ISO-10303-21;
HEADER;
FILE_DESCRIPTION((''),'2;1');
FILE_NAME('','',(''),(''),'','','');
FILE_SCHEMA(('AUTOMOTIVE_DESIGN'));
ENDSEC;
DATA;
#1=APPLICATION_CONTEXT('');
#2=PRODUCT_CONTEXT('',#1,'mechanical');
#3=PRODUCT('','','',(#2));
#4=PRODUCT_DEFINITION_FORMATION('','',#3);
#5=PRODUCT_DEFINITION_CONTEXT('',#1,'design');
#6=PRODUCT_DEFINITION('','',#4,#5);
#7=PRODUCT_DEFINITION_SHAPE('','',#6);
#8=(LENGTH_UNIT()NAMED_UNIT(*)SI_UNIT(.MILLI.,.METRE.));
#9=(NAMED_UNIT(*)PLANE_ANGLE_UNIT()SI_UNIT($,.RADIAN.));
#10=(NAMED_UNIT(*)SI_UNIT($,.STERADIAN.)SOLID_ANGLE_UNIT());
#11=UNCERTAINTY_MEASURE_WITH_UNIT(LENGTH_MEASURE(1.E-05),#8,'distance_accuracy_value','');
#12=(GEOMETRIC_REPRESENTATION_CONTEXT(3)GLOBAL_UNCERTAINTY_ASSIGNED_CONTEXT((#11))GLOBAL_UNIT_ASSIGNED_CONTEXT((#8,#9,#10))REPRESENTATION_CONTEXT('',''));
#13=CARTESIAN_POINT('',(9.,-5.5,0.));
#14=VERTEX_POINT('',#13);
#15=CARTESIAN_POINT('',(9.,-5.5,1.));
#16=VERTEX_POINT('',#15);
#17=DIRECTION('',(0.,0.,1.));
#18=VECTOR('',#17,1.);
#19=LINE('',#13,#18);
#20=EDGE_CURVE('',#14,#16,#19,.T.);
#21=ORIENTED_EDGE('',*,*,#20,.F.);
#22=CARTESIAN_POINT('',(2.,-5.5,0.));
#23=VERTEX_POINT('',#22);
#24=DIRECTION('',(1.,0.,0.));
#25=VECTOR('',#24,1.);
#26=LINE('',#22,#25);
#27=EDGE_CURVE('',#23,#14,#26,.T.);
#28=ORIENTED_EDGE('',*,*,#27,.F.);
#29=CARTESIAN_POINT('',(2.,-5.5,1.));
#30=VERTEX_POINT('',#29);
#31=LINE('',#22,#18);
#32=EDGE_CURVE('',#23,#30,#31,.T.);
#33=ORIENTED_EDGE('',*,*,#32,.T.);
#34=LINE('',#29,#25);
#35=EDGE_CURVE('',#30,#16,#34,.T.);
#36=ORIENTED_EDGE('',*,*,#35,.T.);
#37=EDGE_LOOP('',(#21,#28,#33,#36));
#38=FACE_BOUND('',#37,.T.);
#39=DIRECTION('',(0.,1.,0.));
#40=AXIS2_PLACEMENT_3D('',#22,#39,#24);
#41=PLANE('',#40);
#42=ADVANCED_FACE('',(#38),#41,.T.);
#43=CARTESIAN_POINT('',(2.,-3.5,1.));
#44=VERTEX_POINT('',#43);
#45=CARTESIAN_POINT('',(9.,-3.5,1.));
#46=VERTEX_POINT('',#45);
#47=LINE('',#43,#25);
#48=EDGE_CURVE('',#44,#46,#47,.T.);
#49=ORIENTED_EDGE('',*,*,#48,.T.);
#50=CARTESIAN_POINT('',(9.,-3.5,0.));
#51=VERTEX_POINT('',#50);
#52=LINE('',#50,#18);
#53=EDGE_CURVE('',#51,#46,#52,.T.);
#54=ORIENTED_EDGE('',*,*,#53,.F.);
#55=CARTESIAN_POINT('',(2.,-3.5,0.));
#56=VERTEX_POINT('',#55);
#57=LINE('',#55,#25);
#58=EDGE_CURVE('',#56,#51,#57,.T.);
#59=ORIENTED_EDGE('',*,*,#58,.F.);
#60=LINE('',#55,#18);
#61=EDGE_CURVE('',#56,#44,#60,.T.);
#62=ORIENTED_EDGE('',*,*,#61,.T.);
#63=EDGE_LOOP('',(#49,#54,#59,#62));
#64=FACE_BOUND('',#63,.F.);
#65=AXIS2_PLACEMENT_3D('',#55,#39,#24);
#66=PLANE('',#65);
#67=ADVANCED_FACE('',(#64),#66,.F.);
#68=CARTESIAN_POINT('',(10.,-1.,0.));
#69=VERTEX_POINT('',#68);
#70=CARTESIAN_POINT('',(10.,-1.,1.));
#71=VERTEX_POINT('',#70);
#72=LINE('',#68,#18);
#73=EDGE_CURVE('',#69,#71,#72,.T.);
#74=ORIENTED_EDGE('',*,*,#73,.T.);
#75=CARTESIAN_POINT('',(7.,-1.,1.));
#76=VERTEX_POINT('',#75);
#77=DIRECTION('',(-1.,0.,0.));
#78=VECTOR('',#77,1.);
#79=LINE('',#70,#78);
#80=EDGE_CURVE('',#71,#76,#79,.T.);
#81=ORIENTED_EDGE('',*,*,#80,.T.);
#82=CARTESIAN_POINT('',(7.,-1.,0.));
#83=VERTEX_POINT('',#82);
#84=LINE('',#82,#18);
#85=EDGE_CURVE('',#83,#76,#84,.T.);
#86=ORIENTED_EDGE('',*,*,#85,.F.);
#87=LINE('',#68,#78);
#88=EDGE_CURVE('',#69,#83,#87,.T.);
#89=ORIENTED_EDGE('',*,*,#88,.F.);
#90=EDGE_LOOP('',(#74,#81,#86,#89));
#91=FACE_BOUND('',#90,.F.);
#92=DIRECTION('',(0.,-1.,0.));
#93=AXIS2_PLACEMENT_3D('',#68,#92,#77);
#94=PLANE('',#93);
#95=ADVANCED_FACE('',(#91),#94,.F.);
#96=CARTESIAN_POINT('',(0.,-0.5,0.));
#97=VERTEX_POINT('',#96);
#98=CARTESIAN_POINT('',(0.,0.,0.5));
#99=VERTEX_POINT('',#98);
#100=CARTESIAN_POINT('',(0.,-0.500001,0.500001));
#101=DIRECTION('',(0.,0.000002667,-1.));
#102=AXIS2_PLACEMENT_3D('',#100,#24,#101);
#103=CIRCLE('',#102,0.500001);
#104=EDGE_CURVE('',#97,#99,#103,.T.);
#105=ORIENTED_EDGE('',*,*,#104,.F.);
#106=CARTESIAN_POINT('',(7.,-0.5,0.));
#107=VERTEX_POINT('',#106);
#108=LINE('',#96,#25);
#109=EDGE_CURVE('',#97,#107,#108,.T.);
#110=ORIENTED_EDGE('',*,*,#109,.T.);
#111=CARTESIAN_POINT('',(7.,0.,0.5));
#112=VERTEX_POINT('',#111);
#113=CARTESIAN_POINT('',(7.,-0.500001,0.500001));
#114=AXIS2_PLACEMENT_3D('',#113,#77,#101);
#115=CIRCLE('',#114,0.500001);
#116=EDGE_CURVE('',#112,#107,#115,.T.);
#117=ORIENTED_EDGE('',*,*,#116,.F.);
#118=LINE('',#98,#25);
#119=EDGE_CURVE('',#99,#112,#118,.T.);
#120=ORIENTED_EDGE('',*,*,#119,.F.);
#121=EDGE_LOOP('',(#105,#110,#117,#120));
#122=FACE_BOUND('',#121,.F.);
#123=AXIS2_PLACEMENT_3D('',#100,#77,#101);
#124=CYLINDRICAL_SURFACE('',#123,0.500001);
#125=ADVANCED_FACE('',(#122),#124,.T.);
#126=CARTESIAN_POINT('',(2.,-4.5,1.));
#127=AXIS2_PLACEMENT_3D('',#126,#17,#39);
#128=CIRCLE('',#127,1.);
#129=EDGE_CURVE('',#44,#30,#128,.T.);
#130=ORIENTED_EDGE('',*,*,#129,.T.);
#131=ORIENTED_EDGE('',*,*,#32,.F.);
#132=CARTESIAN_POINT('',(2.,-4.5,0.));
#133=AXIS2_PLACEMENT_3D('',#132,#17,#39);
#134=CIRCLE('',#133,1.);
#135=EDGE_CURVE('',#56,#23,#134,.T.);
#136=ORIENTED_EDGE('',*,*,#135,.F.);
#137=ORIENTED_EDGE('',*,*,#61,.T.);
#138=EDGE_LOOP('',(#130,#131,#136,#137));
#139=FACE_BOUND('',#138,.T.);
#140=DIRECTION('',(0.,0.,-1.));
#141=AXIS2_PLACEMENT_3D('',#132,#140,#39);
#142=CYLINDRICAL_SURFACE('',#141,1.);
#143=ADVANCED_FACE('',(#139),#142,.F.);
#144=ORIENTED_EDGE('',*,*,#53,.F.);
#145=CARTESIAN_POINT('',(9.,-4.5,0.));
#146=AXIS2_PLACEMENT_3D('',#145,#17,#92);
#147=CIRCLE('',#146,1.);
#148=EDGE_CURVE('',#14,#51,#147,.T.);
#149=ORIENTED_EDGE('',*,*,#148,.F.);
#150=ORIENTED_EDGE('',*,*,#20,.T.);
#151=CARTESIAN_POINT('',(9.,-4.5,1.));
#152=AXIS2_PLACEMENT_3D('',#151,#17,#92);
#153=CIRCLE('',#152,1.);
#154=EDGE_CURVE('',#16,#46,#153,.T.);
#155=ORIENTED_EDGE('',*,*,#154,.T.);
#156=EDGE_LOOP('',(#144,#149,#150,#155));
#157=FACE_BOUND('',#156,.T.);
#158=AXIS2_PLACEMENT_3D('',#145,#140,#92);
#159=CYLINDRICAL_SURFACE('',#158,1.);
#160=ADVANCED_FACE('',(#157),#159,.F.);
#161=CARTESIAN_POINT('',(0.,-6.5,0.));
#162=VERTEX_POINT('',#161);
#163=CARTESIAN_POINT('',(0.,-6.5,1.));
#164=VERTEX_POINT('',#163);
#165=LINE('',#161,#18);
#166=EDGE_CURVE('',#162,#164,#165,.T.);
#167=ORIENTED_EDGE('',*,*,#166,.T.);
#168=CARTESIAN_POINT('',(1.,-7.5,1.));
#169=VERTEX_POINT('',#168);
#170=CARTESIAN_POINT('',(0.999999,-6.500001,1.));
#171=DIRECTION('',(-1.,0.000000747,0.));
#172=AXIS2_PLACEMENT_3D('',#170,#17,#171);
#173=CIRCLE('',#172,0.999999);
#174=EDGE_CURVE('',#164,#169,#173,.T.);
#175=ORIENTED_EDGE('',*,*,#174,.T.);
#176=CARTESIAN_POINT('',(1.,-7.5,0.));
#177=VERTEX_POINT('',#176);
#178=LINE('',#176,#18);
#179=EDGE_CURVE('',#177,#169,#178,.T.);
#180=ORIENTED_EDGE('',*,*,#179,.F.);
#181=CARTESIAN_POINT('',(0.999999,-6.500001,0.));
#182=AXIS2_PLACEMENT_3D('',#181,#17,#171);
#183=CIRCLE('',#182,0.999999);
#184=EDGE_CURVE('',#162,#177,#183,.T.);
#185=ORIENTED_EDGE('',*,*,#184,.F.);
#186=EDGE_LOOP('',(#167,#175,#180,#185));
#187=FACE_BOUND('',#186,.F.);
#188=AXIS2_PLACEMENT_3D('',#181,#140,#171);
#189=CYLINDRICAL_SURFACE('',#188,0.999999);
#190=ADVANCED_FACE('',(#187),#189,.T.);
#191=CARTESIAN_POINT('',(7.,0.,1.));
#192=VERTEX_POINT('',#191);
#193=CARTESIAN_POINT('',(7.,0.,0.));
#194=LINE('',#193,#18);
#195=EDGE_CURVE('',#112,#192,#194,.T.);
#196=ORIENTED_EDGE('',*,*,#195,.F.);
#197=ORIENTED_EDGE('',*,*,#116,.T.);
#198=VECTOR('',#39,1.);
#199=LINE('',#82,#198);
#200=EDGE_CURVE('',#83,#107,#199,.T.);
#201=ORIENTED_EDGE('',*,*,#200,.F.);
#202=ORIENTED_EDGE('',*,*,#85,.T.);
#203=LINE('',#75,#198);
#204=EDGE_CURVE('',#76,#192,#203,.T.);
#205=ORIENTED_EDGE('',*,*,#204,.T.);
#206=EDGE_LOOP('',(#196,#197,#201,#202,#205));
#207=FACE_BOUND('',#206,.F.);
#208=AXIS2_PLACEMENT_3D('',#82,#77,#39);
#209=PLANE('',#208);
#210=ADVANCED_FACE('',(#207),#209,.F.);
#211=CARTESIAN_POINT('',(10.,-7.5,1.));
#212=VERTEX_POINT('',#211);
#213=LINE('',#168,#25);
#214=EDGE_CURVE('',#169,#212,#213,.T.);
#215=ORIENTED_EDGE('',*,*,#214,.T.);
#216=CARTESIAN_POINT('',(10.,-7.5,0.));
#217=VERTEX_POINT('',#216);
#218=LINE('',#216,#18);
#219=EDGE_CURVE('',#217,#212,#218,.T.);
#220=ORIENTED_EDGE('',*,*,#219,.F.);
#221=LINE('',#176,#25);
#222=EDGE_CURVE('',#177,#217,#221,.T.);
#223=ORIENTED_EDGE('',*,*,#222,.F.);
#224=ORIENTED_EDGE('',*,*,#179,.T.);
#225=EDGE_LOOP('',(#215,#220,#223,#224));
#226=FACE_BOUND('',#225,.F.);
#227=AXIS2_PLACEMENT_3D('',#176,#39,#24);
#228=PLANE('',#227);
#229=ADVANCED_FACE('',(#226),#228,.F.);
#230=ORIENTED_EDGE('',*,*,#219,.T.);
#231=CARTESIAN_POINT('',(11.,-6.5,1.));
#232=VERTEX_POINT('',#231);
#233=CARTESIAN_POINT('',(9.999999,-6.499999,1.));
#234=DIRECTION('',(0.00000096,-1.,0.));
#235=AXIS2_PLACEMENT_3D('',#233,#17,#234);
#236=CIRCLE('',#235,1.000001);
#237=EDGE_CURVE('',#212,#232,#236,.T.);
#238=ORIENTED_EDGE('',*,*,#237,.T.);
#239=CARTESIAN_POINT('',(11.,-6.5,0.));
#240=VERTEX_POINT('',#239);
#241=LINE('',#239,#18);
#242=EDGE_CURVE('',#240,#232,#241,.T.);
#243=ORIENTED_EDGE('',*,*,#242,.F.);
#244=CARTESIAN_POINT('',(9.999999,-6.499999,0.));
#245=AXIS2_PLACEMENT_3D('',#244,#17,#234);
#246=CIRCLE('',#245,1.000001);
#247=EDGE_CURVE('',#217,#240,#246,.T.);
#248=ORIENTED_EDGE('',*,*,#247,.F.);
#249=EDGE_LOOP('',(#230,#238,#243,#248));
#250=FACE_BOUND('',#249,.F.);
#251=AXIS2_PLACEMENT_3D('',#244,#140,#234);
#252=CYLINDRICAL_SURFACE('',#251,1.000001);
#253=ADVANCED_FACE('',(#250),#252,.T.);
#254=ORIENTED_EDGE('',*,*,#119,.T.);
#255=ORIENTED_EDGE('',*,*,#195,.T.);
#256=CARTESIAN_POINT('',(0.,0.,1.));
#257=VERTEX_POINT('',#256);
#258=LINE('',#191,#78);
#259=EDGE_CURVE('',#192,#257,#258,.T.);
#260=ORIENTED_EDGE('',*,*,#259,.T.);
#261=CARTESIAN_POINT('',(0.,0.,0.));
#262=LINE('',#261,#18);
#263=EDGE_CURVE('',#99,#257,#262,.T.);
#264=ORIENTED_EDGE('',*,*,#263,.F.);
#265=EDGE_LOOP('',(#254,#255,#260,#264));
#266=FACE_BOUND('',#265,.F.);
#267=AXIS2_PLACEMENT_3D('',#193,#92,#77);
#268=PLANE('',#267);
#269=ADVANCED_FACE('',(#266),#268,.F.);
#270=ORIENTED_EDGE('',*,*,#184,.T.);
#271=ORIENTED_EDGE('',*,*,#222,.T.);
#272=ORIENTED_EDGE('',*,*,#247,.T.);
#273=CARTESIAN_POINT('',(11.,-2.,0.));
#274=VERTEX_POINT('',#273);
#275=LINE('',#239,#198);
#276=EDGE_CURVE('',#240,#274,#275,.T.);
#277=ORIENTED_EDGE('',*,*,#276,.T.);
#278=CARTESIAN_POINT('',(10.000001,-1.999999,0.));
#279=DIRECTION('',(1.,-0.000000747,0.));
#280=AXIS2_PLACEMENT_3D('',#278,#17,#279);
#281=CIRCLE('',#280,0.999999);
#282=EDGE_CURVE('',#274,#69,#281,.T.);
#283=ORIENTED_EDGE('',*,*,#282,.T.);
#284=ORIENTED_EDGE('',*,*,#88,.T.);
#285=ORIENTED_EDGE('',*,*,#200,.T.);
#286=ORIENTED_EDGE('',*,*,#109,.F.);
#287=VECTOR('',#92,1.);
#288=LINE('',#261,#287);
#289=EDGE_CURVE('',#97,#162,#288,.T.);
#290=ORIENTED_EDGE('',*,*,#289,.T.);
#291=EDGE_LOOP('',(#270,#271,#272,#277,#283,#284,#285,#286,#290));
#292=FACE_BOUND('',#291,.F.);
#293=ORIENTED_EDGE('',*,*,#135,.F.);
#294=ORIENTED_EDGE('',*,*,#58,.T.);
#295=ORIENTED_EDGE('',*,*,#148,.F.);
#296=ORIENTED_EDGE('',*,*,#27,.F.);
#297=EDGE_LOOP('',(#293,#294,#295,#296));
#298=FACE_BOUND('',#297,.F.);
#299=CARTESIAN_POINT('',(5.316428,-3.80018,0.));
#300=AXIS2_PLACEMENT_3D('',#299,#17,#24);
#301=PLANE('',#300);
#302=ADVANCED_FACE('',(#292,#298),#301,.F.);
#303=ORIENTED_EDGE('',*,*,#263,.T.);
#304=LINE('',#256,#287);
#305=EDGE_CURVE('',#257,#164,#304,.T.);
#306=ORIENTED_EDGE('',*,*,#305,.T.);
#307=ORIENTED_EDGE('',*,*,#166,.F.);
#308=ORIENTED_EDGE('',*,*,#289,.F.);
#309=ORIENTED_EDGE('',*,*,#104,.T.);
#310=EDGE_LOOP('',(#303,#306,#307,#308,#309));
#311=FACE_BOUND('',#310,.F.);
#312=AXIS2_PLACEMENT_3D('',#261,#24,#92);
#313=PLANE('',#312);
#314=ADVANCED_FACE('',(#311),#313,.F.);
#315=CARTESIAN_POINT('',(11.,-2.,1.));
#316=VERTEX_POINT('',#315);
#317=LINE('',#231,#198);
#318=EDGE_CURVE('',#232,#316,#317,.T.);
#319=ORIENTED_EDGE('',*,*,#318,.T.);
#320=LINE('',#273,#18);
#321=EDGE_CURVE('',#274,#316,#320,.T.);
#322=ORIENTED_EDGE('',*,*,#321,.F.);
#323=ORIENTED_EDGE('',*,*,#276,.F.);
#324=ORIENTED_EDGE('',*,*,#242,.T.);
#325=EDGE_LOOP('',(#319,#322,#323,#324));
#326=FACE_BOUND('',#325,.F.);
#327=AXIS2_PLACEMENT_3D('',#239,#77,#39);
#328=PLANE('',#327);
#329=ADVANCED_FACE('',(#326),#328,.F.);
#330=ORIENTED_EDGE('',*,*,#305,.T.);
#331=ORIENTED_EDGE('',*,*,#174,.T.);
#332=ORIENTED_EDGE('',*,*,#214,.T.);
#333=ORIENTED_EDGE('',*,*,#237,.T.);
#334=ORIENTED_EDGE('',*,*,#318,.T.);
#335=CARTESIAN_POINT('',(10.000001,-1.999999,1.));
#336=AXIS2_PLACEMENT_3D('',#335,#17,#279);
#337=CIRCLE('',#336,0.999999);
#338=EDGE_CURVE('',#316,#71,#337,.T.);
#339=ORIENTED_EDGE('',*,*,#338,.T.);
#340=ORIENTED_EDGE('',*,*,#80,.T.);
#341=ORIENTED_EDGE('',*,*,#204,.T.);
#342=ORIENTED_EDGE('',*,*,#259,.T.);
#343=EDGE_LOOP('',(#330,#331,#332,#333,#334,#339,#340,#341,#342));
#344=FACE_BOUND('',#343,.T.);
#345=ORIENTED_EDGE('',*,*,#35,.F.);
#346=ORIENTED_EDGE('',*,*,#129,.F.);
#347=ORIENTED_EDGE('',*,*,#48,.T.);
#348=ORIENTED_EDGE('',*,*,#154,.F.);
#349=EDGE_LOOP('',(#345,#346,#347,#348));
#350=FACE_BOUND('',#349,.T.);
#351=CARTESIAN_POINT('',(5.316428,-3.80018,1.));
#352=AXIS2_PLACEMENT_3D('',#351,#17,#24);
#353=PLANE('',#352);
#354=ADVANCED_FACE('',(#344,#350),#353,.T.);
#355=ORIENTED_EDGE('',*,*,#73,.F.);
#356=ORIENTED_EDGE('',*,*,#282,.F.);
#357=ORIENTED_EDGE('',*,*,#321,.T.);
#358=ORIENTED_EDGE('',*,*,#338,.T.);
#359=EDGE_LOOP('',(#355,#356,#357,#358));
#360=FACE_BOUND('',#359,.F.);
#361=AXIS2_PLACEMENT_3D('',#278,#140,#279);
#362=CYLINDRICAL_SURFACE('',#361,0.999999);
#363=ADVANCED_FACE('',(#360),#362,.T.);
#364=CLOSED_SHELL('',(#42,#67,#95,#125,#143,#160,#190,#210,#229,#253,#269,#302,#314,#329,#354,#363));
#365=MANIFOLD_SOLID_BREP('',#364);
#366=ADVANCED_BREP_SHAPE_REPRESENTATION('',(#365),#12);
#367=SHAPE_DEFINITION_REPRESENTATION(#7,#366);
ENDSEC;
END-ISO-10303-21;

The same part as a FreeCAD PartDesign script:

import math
import FreeCAD as App
import Part
import Sketcher

doc = App.newDocument("Part")
body = doc.addObject("PartDesign::Body", "Body")

# Sketch on XY plane
sketch1 = doc.addObject("Sketcher::SketchObject", "Sketch")
body.addObject(sketch1)
sketch1.AttachmentSupport = (doc.XY_Plane, [""])
sketch1.MapMode = "FlatFace"
sketch1.addGeometry([
    Part.LineSegment(App.Vector(2, -5.5, 0), App.Vector(9, -5.5, 0)),
    Part.ArcOfCircle(Part.Circle(App.Vector(9, -4.5, 0), App.Vector(0, 0, 1), 1), math.radians(-90), math.radians(90)),
    Part.LineSegment(App.Vector(9, -3.5, 0), App.Vector(2, -3.5, 0)),
    Part.ArcOfCircle(Part.Circle(App.Vector(2, -4.5, 0), App.Vector(0, 0, 1), 1), math.radians(90), math.radians(270)),
], False)
sketch1.addConstraint([
    Sketcher.Constraint("Tangent", 0, 2, 1, 1),
    Sketcher.Constraint("Tangent", 1, 2, 2, 1),
    Sketcher.Constraint("Tangent", 2, 2, 3, 1),
    Sketcher.Constraint("Tangent", 3, 2, 0, 1),
    Sketcher.Constraint("Horizontal", 0),
    Sketcher.Constraint("Horizontal", 2),
    Sketcher.Constraint("Radius", 1, 1.0),
    Sketcher.Constraint("DistanceX", 0, 1, 0, 2, 7.0),
    Sketcher.Constraint("DistanceX", -1, 1, 1, 3, 9.0),
    Sketcher.Constraint("DistanceY", 1, 3, -1, 1, 4.5),
])
pad1 = doc.addObject("PartDesign::Pad", "Pad")
body.addObject(pad1)
pad1.Profile = sketch1
pad1.Length = 1
body2 = doc.addObject("PartDesign::Body", "Body001")

# Sketch on YZ plane
sketch2 = doc.addObject("Sketcher::SketchObject", "Sketch001")
body2.addObject(sketch2)
sketch2.AttachmentSupport = (doc.getObject("YZ_Plane001"), [""])
sketch2.MapMode = "FlatFace"
sketch2.addGeometry([
    Part.ArcOfCircle(Part.Circle(App.Vector(-0.5, 0.5, 0), App.Vector(0, 0, 1), 0.5), math.radians(-90), math.radians(0)),
    Part.LineSegment(App.Vector(-0.5, 0, 0), App.Vector(0, 0, 0)),
    Part.LineSegment(App.Vector(0, 0, 0), App.Vector(0, 0.5, 0)),
], False)
sketch2.addConstraint([
    Sketcher.Constraint("Coincident", 0, 1, 1, 1),
    Sketcher.Constraint("Coincident", 1, 2, 2, 1),
    Sketcher.Constraint("Coincident", 2, 2, 0, 2),
    Sketcher.Constraint("Horizontal", 1),
    Sketcher.Constraint("Vertical", 2),
    Sketcher.Constraint("Coincident", 1, 2, -1, 1),
    Sketcher.Constraint("Horizontal", 0, 3, 2, 2),
    Sketcher.Constraint("Equal", 1, 2),
    Sketcher.Constraint("Radius", 0, 0.500001),
])
pad2 = doc.addObject("PartDesign::Pad", "Pad001")
body2.addObject(pad2)
pad2.Profile = sketch2
pad2.Length = 15
body3 = doc.addObject("PartDesign::Body", "Body002")

# Sketch on XY plane
sketch3 = doc.addObject("Sketcher::SketchObject", "Sketch002")
body3.addObject(sketch3)
sketch3.AttachmentSupport = (doc.getObject("XY_Plane002"), [""])
sketch3.MapMode = "FlatFace"
sketch3.addGeometry([
    Part.ArcOfCircle(Part.Circle(App.Vector(1, -6.5, 0), App.Vector(0, 0, 1), 1), math.radians(180), math.radians(270)),  # 0
    Part.LineSegment(App.Vector(1, -7.5, 0), App.Vector(10, -7.5, 0)),  # 1
    Part.ArcOfCircle(Part.Circle(App.Vector(10, -6.5, 0), App.Vector(0, 0, 1), 1), math.radians(-90), math.radians(0)),  # 2
    Part.LineSegment(App.Vector(11, -6.5, 0), App.Vector(11, -2, 0)),  # 3
    Part.ArcOfCircle(Part.Circle(App.Vector(10, -2, 0), App.Vector(0, 0, 1), 1), math.radians(0), math.radians(90)),  # 4
    Part.LineSegment(App.Vector(10, -1, 0), App.Vector(7, -1, 0)),  # 5
    Part.LineSegment(App.Vector(7, -1, 0), App.Vector(7, 0, 0)),  # 6
    Part.LineSegment(App.Vector(7, 0, 0), App.Vector(0, 0, 0)),  # 7
    Part.LineSegment(App.Vector(0, 0, 0), App.Vector(0, -6.5, 0)),  # 8
], False)
sketch3.addConstraint([
    Sketcher.Constraint("Tangent", 0, 2, 1, 1),
    Sketcher.Constraint("Tangent", 1, 2, 2, 1),
    Sketcher.Constraint("Tangent", 2, 2, 3, 1),
    Sketcher.Constraint("Tangent", 3, 2, 4, 1),
    Sketcher.Constraint("Tangent", 4, 2, 5, 1),
    Sketcher.Constraint("Coincident", 5, 2, 6, 1),
    Sketcher.Constraint("Coincident", 6, 2, 7, 1),
    Sketcher.Constraint("Coincident", 7, 2, 8, 1),
    Sketcher.Constraint("Tangent", 8, 2, 0, 1),
    Sketcher.Constraint("Horizontal", 1),
    Sketcher.Constraint("Vertical", 3),
    Sketcher.Constraint("Horizontal", 5),
    Sketcher.Constraint("Vertical", 6),
    Sketcher.Constraint("Horizontal", 7),
    Sketcher.Constraint("Vertical", 8),
    Sketcher.Constraint("Coincident", 7, 2, -1, 1),
    Sketcher.Constraint("Equal", 0, 2),
    Sketcher.Constraint("Equal", 2, 4),
    Sketcher.Constraint("Radius", 0, 0.999999),
    Sketcher.Constraint("DistanceX", 1, 1, 1, 2, 9.0),
    Sketcher.Constraint("DistanceX", 5, 2, 5, 1, 3.0),
    Sketcher.Constraint("DistanceY", 6, 1, 6, 2, 1.0),
    Sketcher.Constraint("DistanceY", 3, 1, 3, 2, 4.5),
])
pad3 = doc.addObject("PartDesign::Pad", "Pad002")
body3.addObject(pad3)
pad3.Profile = sketch3
pad3.Length = 1
doc.recompute()

boolean = doc.addObject("PartDesign::Boolean", "Boolean")
body3.addObject(boolean)
boolean.Type = "Cut"
boolean.addObjects([body2])
doc.recompute()

boolean2 = doc.addObject("PartDesign::Boolean", "Boolean001")
body3.addObject(boolean2)
boolean2.Type = "Cut"
boolean2.addObjects([body])

doc.recompute()
